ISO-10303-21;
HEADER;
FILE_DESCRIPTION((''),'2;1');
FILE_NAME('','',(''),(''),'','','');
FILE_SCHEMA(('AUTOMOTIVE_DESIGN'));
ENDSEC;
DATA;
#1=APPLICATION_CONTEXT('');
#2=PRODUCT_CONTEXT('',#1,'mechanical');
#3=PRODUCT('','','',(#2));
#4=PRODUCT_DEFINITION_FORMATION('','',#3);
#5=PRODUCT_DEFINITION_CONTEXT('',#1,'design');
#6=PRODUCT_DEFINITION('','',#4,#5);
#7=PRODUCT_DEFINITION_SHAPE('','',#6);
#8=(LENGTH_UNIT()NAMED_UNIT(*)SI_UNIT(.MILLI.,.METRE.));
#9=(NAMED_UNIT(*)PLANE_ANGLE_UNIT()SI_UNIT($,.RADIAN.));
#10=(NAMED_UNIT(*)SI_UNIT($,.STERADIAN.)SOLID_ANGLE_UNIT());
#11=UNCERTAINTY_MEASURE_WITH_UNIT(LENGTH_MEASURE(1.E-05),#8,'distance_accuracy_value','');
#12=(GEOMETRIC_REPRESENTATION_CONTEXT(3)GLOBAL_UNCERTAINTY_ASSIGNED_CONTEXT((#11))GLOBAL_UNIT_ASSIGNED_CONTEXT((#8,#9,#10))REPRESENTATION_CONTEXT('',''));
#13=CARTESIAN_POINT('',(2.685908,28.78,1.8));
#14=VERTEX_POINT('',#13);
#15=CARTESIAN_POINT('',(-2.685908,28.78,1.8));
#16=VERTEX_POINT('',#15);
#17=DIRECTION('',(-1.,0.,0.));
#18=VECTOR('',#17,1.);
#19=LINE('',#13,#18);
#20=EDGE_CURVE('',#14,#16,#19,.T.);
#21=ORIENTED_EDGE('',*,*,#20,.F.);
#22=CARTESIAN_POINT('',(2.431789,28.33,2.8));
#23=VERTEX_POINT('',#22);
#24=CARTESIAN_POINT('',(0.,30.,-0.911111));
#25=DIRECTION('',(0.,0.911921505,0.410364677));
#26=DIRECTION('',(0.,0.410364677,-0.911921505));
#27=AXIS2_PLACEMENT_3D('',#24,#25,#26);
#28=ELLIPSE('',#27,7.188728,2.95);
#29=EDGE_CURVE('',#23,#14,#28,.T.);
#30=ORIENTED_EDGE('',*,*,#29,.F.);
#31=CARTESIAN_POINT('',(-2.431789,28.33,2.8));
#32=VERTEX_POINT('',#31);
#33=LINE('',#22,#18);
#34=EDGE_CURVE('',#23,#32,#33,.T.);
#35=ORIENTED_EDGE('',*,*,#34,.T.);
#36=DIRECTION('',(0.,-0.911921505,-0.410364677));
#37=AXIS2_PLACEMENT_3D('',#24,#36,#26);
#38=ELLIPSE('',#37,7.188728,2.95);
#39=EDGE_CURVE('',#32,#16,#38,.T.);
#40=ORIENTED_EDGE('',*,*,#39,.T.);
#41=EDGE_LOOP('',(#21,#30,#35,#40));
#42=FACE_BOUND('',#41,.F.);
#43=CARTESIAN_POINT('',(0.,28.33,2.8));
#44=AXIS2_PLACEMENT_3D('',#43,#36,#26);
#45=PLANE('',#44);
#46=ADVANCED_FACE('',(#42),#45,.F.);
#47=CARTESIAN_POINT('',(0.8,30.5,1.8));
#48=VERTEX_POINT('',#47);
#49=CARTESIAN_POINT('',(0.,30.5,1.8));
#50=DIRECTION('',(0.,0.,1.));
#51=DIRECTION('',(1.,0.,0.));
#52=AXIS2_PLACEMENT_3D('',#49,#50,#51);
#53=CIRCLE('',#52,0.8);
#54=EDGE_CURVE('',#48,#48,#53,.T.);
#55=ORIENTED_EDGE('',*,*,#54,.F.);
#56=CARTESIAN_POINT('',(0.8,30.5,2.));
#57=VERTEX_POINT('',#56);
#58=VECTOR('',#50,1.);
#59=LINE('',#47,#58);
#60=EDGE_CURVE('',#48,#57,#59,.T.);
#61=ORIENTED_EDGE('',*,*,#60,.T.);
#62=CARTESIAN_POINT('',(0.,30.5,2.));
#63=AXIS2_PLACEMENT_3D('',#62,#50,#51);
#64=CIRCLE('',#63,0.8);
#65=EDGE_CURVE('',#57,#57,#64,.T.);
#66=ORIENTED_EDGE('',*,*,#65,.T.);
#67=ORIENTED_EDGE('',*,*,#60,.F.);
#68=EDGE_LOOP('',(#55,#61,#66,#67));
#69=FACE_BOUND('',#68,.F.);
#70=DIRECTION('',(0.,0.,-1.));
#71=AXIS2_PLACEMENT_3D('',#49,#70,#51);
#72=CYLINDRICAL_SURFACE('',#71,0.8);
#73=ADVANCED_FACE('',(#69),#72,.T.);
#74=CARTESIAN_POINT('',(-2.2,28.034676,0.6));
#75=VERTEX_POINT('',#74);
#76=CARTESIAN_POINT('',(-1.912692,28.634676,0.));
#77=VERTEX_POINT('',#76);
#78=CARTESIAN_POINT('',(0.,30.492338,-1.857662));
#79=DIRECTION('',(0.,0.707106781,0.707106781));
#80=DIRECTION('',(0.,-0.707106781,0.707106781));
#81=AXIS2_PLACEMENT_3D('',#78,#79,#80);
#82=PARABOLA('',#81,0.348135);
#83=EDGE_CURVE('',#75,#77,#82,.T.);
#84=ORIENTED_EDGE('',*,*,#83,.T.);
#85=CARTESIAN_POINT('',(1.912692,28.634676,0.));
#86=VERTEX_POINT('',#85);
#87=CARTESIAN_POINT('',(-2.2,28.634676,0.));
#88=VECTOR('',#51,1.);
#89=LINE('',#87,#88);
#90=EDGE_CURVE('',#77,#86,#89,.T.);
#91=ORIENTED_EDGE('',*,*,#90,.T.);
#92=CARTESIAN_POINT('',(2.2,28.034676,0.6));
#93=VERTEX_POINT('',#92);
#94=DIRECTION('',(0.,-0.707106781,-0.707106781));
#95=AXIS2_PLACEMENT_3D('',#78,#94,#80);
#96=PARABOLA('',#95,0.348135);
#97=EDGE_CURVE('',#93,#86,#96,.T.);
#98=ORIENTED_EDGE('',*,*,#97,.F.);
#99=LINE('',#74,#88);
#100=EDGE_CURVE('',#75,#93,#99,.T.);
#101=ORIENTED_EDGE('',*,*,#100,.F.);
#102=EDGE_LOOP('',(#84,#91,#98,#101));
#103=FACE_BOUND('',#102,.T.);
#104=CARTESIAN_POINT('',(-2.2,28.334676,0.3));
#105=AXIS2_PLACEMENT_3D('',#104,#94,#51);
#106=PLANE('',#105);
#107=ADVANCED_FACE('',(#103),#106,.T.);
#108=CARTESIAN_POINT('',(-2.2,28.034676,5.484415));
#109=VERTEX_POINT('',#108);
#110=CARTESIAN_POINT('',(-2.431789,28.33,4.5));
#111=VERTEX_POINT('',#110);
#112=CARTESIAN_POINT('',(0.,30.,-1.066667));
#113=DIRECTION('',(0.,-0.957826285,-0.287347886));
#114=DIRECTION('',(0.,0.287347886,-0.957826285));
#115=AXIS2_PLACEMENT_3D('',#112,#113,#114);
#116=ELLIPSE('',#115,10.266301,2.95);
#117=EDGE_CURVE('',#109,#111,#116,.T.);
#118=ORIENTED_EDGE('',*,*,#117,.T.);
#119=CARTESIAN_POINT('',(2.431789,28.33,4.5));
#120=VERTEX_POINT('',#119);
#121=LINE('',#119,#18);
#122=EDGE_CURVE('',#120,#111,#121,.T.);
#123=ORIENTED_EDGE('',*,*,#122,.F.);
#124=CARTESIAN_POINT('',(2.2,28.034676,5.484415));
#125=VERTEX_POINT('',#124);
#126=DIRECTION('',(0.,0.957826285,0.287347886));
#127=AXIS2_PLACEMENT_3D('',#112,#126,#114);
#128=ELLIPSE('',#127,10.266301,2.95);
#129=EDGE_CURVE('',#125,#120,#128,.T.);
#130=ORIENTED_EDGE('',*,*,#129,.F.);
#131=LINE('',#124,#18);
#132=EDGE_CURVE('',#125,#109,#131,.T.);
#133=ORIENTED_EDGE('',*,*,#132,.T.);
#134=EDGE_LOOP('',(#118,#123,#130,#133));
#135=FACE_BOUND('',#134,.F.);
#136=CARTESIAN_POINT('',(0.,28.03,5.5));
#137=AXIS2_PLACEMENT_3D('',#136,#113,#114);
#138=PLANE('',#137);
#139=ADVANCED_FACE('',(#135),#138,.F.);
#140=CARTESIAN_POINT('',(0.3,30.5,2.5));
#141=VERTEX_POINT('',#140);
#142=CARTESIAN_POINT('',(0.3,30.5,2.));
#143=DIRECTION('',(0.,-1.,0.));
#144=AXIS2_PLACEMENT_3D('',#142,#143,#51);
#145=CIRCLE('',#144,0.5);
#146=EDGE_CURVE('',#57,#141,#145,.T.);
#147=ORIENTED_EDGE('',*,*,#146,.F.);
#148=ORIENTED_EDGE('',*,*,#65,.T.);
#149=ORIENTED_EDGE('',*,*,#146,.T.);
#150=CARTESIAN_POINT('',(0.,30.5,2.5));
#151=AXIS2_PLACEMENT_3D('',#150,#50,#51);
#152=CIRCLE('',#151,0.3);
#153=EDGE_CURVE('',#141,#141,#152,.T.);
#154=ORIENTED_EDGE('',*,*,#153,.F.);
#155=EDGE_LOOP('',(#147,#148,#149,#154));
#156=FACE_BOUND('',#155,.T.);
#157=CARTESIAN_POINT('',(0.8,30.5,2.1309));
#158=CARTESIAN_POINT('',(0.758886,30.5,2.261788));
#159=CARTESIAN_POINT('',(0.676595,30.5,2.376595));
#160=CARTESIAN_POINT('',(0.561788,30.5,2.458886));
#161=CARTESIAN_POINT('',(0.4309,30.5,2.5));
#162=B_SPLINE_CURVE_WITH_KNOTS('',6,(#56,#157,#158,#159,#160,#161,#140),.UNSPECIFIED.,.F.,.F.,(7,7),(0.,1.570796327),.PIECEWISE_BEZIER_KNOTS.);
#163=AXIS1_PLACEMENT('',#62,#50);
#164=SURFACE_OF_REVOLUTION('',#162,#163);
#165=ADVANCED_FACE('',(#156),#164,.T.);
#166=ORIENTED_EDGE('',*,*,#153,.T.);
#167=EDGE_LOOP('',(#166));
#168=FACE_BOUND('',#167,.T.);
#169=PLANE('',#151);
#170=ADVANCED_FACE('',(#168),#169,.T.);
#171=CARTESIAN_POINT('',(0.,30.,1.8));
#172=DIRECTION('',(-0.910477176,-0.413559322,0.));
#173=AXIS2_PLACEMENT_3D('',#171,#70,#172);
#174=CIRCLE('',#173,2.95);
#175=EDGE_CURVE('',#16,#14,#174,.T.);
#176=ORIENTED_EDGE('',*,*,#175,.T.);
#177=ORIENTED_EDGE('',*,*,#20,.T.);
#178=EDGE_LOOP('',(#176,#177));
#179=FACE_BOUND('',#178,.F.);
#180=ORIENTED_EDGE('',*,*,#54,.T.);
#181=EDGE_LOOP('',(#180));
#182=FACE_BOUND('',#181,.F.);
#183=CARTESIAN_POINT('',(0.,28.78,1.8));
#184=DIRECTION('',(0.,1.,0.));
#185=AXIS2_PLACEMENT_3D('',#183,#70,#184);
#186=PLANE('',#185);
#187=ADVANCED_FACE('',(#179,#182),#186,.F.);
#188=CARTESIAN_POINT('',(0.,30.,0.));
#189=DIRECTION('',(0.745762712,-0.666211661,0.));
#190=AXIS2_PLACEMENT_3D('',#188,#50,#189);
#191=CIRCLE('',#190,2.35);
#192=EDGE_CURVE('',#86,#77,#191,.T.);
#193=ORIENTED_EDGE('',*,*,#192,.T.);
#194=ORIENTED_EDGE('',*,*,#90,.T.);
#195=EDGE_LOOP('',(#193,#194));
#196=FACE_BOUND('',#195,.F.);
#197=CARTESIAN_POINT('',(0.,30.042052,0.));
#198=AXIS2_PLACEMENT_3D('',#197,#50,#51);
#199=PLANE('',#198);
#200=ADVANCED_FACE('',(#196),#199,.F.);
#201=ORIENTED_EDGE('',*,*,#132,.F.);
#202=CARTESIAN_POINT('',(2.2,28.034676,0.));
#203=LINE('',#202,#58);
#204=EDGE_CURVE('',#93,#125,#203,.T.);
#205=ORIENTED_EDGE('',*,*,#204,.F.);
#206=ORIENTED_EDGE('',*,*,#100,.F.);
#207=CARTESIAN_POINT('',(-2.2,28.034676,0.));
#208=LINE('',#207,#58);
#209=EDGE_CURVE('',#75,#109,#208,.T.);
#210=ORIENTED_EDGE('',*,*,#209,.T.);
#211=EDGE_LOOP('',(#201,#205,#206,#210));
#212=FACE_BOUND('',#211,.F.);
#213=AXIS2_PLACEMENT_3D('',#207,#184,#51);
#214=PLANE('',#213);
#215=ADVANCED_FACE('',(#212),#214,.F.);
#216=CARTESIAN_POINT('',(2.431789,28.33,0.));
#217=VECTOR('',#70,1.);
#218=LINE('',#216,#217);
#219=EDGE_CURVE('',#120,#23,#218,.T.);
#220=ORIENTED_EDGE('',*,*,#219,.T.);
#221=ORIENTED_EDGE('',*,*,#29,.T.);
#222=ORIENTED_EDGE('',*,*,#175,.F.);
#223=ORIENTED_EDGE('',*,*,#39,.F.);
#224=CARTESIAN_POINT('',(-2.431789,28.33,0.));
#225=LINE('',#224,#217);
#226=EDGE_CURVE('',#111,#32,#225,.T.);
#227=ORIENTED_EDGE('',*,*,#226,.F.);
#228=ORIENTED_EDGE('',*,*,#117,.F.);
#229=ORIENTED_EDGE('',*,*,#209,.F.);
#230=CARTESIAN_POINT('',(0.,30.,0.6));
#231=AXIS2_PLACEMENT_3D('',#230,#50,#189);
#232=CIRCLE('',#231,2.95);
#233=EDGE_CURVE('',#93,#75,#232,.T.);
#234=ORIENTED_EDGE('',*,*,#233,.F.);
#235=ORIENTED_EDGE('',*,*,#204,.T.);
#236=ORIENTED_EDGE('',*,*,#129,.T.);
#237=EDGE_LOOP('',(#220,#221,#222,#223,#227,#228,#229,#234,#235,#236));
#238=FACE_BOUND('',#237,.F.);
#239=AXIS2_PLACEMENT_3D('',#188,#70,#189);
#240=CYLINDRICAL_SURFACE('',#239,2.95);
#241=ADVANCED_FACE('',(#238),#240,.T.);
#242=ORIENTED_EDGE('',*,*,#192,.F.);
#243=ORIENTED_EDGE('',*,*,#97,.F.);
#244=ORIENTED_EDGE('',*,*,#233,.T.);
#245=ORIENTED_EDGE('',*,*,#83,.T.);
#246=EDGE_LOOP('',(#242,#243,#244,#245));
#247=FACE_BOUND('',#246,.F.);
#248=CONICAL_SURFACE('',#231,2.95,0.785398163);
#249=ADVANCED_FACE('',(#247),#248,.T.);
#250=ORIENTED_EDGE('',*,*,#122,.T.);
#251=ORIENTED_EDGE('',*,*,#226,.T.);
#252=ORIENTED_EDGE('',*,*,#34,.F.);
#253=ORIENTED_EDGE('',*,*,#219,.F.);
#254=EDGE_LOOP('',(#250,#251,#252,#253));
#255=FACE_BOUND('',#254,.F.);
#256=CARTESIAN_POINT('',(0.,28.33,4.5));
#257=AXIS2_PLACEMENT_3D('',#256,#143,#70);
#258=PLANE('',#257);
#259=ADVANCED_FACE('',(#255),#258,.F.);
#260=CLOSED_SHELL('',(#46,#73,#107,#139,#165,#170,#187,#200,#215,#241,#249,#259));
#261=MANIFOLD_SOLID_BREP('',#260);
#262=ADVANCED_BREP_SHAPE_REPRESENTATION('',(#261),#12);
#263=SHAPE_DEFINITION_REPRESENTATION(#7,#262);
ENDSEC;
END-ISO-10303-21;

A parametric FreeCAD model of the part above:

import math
import FreeCAD as App
import Part
import Sketcher

V = App.Vector


def edges_at(feature, points):
    """Names of the edges that pass closest to the given points."""
    edges = feature.Shape.Edges
    near = lambda p: min(range(len(edges)), key=lambda i: edges[i].distToShape(Part.Vertex(*p))[0])
    return sorted({f"Edge{near(p) + 1}" for p in points})


def add_polygon(sketch, points):
    """Adds a closed chain of lines whose ends are joined by coincident constraints."""
    first, n = sketch.GeometryCount, len(points)
    for a, b in zip(points, points[1:] + points[:1]):
        sketch.addGeometry(Part.LineSegment(App.Vector(*a, 0), App.Vector(*b, 0)), False)
    for i in range(n):
        sketch.addConstraint(Sketcher.Constraint("Coincident", first + i, 2, first + (i + 1) % n, 1))

doc = App.newDocument("Part")
body = doc.addObject("PartDesign::Body", "Body")

# Sketch on XY plane
sketch1 = doc.addObject("Sketcher::SketchObject", "Sketch")
body.addObject(sketch1)
sketch1.AttachmentSupport = (doc.XY_Plane, [""])
sketch1.MapMode = "FlatFace"
sketch1.addGeometry([
    Part.ArcOfCircle(Part.Circle(V(0, 0, 0), V(0, 0, 1), 3), math.radians(-42), math.radians(222)),
    Part.LineSegment(V(-2.2, -2, 0), V(2.2, -2, 0)),
], False)
sketch1.addConstraint([
    Sketcher.Constraint("Coincident", 0, 1, 1, 2),
    Sketcher.Constraint("Coincident", 1, 1, 0, 2),
    Sketcher.Constraint("Horizontal", 1),
    Sketcher.Constraint("Coincident", 0, 3, -1, 1),
    Sketcher.Constraint("Radius", 0, 2.95),
    Sketcher.Constraint("DistanceX", 1, 1, 1, 2, 4.4),
])
pad1 = doc.addObject("PartDesign::Pad", "Pad")
body.addObject(pad1)
pad1.Profile = sketch1
pad1.Length = 5.5

# Sketch on YZ plane
sketch2 = doc.addObject("Sketcher::SketchObject", "Sketch001")
body.addObject(sketch2)
sketch2.AttachmentSupport = (doc.YZ_Plane, [""])
sketch2.MapMode = "FlatFace"
add_polygon(sketch2, [(-2, 5.5), (-1.7, 4.5), (-1.7, 2.8), (-1.2, 1.8), (4, 1.8), (4, 5.5)])  # lines 0-5
sketch2.addConstraint([
    Sketcher.Constraint("Vertical", 1),
    Sketcher.Constraint("Horizontal", 3),
    Sketcher.Constraint("Vertical", 4),
    Sketcher.Constraint("Horizontal", 5),
    Sketcher.Constraint("DistanceY", 1, 2, 1, 1, 1.7),
    Sketcher.Constraint("DistanceY", 4, 1, 4, 2, 3.7),
    Sketcher.Constraint("DistanceX", -1, 1, 3, 2, 4.0),
    Sketcher.Constraint("DistanceY", 2, 2, 1, 2, 1.0),
    Sketcher.Constraint("DistanceX", 3, 1, 3, 2, 5.22),
    Sketcher.Constraint("DistanceX", 5, 2, 5, 1, 5.97),
    Sketcher.Constraint("DistanceY", -1, 1, 0, 2, 4.5),
    Sketcher.Constraint("DistanceX", 5, 2, 0, 2, 0.3),
])
pocket1 = doc.addObject("PartDesign::Pocket", "Pocket")
body.addObject(pocket1)
pocket1.Profile = sketch2
pocket1.Type = "ThroughAll"
pocket1.Midplane = True

# Sketch on XY plane
sketch3 = doc.addObject("Sketcher::SketchObject", "Sketch002")
body.addObject(sketch3)
sketch3.AttachmentSupport = (doc.XY_Plane, [""])
sketch3.MapMode = "FlatFace"
sketch3.AttachmentOffset = App.Placement(V(0, 0, 1.8), App.Rotation())
sketch3.addGeometry(Part.Circle(V(0, 0.5, 0), V(0, 0, 1), 0.8), False)
sketch3.addConstraint([
    Sketcher.Constraint("PointOnObject", 0, 3, -2),
    Sketcher.Constraint("Diameter", 0, 1.6),
    Sketcher.Constraint("DistanceY", -1, 1, 0, 3, 0.5),
])
pad2 = doc.addObject("PartDesign::Pad", "Pad001")
body.addObject(pad2)
pad2.Profile = sketch3
pad2.Length = 0.7
doc.recompute()

fillet = doc.addObject("PartDesign::Fillet", "Fillet")
body.addObject(fillet)
fillet.Base = (pad2, edges_at(pad2, [(-0.8, 0.5, 2.5)]))
fillet.Radius = 0.5
doc.recompute()

chamfer = doc.addObject("PartDesign::Chamfer", "Chamfer")
body.addObject(chamfer)
chamfer.Base = (fillet, edges_at(fillet, [(0, 2.95, 0), (0, -1.965, 0)]))
chamfer.Size = 0.6
body2 = doc.addObject("PartDesign::Body", "Body001")
doc.recompute()

body.Placement = App.Placement(V(0, 30, 0), App.Rotation(V(0, 0, 1), 0))
boolean = doc.addObject("PartDesign::Boolean", "Boolean")
body2.addObject(boolean)
boolean.Type = "Fuse"
boolean.addObjects([body])

doc.recompute()
